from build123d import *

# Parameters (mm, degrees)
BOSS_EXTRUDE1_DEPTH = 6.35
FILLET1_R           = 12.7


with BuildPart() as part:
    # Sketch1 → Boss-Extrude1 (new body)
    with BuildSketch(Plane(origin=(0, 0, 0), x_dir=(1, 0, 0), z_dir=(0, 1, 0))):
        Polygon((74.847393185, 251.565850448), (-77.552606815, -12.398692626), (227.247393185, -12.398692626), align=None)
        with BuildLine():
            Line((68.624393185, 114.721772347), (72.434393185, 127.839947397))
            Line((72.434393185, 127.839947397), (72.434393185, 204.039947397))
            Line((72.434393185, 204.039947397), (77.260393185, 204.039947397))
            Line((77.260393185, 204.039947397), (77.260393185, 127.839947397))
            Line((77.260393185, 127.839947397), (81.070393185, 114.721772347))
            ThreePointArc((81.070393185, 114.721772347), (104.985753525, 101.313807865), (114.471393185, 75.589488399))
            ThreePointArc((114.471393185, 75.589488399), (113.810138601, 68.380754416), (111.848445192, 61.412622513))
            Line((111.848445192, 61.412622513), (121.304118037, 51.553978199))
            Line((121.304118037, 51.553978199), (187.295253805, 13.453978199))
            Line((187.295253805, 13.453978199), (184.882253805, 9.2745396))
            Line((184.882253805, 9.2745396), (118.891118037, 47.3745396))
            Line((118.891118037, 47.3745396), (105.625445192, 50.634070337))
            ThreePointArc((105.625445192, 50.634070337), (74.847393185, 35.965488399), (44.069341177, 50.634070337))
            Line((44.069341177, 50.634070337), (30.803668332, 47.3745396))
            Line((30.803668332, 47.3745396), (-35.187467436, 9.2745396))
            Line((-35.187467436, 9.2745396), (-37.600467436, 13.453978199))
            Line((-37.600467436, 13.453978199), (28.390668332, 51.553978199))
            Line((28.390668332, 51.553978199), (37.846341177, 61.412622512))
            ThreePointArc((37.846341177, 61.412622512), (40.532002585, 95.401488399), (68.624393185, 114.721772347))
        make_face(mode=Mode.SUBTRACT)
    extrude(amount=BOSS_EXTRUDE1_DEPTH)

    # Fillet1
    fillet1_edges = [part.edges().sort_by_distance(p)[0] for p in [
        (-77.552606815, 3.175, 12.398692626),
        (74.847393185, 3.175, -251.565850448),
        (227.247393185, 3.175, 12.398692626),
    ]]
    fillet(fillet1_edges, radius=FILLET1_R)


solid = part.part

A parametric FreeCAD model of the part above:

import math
import FreeCAD as App
import Part
import Sketcher
from FreeCAD import Vector
Q = App.Units.Quantity


def edges_at(feature, points):
    """Names of the edges that pass closest to the given points."""
    edges = feature.Shape.Edges
    near = lambda p: min(range(len(edges)), key=lambda i: edges[i].distToShape(Part.Vertex(*p))[0])
    return sorted({f"Edge{near(p) + 1}" for p in points})

doc = App.newDocument("Part")
params = doc.addObject("Spreadsheet::Sheet", "Params")
for row, (alias, value) in enumerate([
    ("sketch1_width", "12 in"),
    ("sketch1_height", "3 in"),
    ("sketch1_radius", "1.56 in"),
    ("sketch1_length", "12 in"),
    ("sketch1_length2", "3 in"),
    ("pad1_length", "0.25 in"),
    ("fillet_radius", "0.5 in"),
], start=1):
    params.set(f"A{row}", alias)
    params.set(f"B{row}", "=" + value)
    params.setAlias(f"B{row}", alias)

body = doc.addObject("PartDesign::Body", "Body")

# Sketch on XZ plane
sketch1 = body.newObject("Sketcher::SketchObject", "Sketch")
sketch1.AttachmentSupport = (doc.getObject("XZ_Plane"), [""])
sketch1.MapMode = "FlatFace"
sketch1.addGeometry([
    Part.LineSegment(Vector(74.847393, -251.56585, 0), Vector(-77.552607, 12.398693, 0)),  # 0
    Part.LineSegment(Vector(-77.552607, 12.398693, 0), Vector(227.247393, 12.398693, 0)),  # 1
    Part.LineSegment(Vector(227.247393, 12.398693, 0), Vector(74.847393, -251.56585, 0)),  # 2
    Part.ArcOfCircle(Part.Circle(Vector(74.847393, -75.589488, 0), Vector(0, 0, 1), 39.624), math.radians(159.035783), math.radians(260.964217)),  # 3
    Part.LineSegment(Vector(68.624393, -114.721772, 0), Vector(72.434393, -127.839947, 0)),  # 4
    Part.LineSegment(Vector(72.434393, -127.839947, 0), Vector(72.434393, -204.039947, 0)),  # 5
    Part.LineSegment(Vector(72.434393, -204.039947, 0), Vector(77.260393, -204.039947, 0)),  # 6
    Part.LineSegment(Vector(77.260393, -204.039947, 0), Vector(77.260393, -127.839947, 0)),  # 7
    Part.LineSegment(Vector(77.260393, -127.839947, 0), Vector(81.070393, -114.721772, 0)),  # 8
    Part.ArcOfCircle(Part.Circle(Vector(74.847393, -75.589488, 0), Vector(0, 0, 1), 39.624), math.radians(-80.964217), math.radians(0)),  # 9
    Part.ArcOfCircle(Part.Circle(Vector(74.847393, -75.589488, 0), Vector(0, 0, 1), 39.624), math.radians(0), math.radians(20.964217)),  # 10
    Part.LineSegment(Vector(111.848445, -61.412623, 0), Vector(121.304118, -51.553978, 0)),  # 11
    Part.LineSegment(Vector(121.304118, -51.553978, 0), Vector(187.295254, -13.453978, 0)),  # 12
    Part.LineSegment(Vector(187.295254, -13.453978, 0), Vector(184.882254, -9.27454, 0)),  # 13
    Part.LineSegment(Vector(184.882254, -9.27454, 0), Vector(118.891118, -47.37454, 0)),  # 14
    Part.LineSegment(Vector(118.891118, -47.37454, 0), Vector(105.625445, -50.63407, 0)),  # 15
    Part.ArcOfCircle(Part.Circle(Vector(74.847393, -75.589488, 0), Vector(0, 0, 1), 39.624), math.radians(39.035783), math.radians(140.964217)),  # 16
    Part.LineSegment(Vector(44.069341, -50.63407, 0), Vector(30.803668, -47.37454, 0)),  # 17
    Part.LineSegment(Vector(30.803668, -47.37454, 0), Vector(-35.187467, -9.27454, 0)),  # 18
    Part.LineSegment(Vector(-35.187467, -9.27454, 0), Vector(-37.600467, -13.453978, 0)),  # 19
    Part.LineSegment(Vector(-37.600467, -13.453978, 0), Vector(28.390668, -51.553978, 0)),  # 20
    Part.LineSegment(Vector(28.390668, -51.553978, 0), Vector(37.846341, -61.412623, 0)),  # 21
], False)
sketch1.addConstraint([
    Sketcher.Constraint("Coincident", 0, 2, 1, 1),
    Sketcher.Constraint("Coincident", 1, 2, 2, 1),
    Sketcher.Constraint("Coincident", 2, 2, 0, 1),
    Sketcher.Constraint("Coincident", 3, 2, 4, 1),
    Sketcher.Constraint("Coincident", 4, 2, 5, 1),
    Sketcher.Constraint("Coincident", 5, 2, 6, 1),
    Sketcher.Constraint("Coincident", 6, 2, 7, 1),
    Sketcher.Constraint("Coincident", 7, 2, 8, 1),
    Sketcher.Constraint("Coincident", 8, 2, 9, 1),
    Sketcher.Constraint("Tangent", 9, 2, 10, 1),
    Sketcher.Constraint("Coincident", 10, 2, 11, 1),
    Sketcher.Constraint("Coincident", 11, 2, 12, 1),
    Sketcher.Constraint("Coincident", 12, 2, 13, 1),
    Sketcher.Constraint("Coincident", 13, 2, 14, 1),
    Sketcher.Constraint("Coincident", 14, 2, 15, 1),
    Sketcher.Constraint("Coincident", 15, 2, 16, 1),
    Sketcher.Constraint("Coincident", 16, 2, 17, 1),
    Sketcher.Constraint("Coincident", 17, 2, 18, 1),
    Sketcher.Constraint("Coincident", 18, 2, 19, 1),
    Sketcher.Constraint("Coincident", 19, 2, 20, 1),
    Sketcher.Constraint("Coincident", 20, 2, 21, 1),
    Sketcher.Constraint("Coincident", 21, 2, 3, 1),
    Sketcher.Constraint("Horizontal", 1),
    Sketcher.Constraint("Vertical", 5),
    Sketcher.Constraint("Horizontal", 6),
    Sketcher.Constraint("Vertical", 7),
    Sketcher.Constraint("Coincident", 9, 3, 3, 3),
    Sketcher.Constraint("Coincident", 16, 3, 3, 3),
    Sketcher.Constraint("Equal", 3, 9),
    Sketcher.Constraint("Equal", 9, 10),
    Sketcher.Constraint("Equal", 10, 16),
    Sketcher.Constraint("Perpendicular", 0, 12),
    Sketcher.Constraint("Perpendicular", 12, 13),
    Sketcher.Constraint("Perpendicular", 13, 14),
    Sketcher.Constraint("Perpendicular", 2, 18),
    Sketcher.Constraint("Perpendicular", 18, 19),
    Sketcher.Constraint("Perpendicular", 19, 20),
    Sketcher.Constraint("Horizontal", 4, 2, 7, 2),
    Sketcher.Constraint("Horizontal", 3, 2, 8, 2),
    Sketcher.Constraint("Horizontal", 16, 3, 9, 2),
    Sketcher.Constraint("Horizontal", 15, 2, 16, 2),
    Sketcher.Constraint("Horizontal", 14, 2, 17, 2),
    Sketcher.Constraint("Horizontal", 13, 2, 18, 2),
    Sketcher.Constraint("Horizontal", 12, 2, 19, 2),
    Sketcher.Constraint("Horizontal", 11, 2, 20, 2),
    Sketcher.Constraint("Horizontal", 10, 2, 21, 2),
    Sketcher.Constraint("Vertical", 16, 3, 2, 2),
    Sketcher.Constraint("Equal", 0, 2),
    Sketcher.Constraint("Equal", 4, 8),
    Sketcher.Constraint("Equal", 8, 11),
    Sketcher.Constraint("Equal", 12, 14),
    Sketcher.Constraint("Equal", 11, 15),
    Sketcher.Constraint("Equal", 15, 17),
    Sketcher.Constraint("DistanceX", 1, 1, 1, 2, Q("12 in")),
    Sketcher.Constraint("DistanceY", 5, 2, 5, 1, Q("3 in")),
    Sketcher.Constraint("Radius", 3, Q("1.56 in")),
    Sketcher.Constraint("Distance", 0, Q("12 in")),
    Sketcher.Constraint("Distance", 12, Q("3 in")),
    Sketcher.Constraint("DistanceX", 6, 1, 6, 2, Q("0.19 in")),
    Sketcher.Constraint("Distance", 13, Q("0.19 in")),
    Sketcher.Constraint("DistanceX", 3, 2, 4, 2, Q("0.15 in")),
    Sketcher.Constraint("DistanceX", 15, 2, 10, 2, Q("0.245 in")),
    Sketcher.Constraint("DistanceY", 3, 3, -1, 1, Q("75.589488 mm")),
    Sketcher.Constraint("DistanceY", 2, 2, -1, 1, Q("251.56585 mm")),
    Sketcher.Constraint("DistanceX", -1, 1, 11, 2, Q("121.304118 mm")),
    Sketcher.Constraint("DistanceY", 11, 2, -1, 1, Q("51.553978 mm")),
    Sketcher.Constraint("DistanceY", 15, 2, -1, 1, Q("50.63407 mm")),
])
sketch1.setExpression("Constraints[53]", "Params.sketch1_width")
sketch1.setExpression("Constraints[54]", "Params.sketch1_height")
sketch1.setExpression("Constraints[55]", "Params.sketch1_radius")
sketch1.setExpression("Constraints[56]", "Params.sketch1_length")
sketch1.setExpression("Constraints[57]", "Params.sketch1_length2")
pad1 = body.newObject("PartDesign::Pad", "Pad")
pad1.Profile = sketch1
pad1.setExpression("Length", "Params.pad1_length")
pad1.Reversed = True
doc.recompute()

fillet = body.newObject("PartDesign::Fillet", "Fillet")
fillet.Base = (pad1, edges_at(pad1, [(-77.553, 3.175, 12.399), (74.847, 3.175, -251.566), (227.247, 3.175, 12.399)]))
fillet.setExpression("Radius", "Params.fillet_radius")

doc.recompute()
